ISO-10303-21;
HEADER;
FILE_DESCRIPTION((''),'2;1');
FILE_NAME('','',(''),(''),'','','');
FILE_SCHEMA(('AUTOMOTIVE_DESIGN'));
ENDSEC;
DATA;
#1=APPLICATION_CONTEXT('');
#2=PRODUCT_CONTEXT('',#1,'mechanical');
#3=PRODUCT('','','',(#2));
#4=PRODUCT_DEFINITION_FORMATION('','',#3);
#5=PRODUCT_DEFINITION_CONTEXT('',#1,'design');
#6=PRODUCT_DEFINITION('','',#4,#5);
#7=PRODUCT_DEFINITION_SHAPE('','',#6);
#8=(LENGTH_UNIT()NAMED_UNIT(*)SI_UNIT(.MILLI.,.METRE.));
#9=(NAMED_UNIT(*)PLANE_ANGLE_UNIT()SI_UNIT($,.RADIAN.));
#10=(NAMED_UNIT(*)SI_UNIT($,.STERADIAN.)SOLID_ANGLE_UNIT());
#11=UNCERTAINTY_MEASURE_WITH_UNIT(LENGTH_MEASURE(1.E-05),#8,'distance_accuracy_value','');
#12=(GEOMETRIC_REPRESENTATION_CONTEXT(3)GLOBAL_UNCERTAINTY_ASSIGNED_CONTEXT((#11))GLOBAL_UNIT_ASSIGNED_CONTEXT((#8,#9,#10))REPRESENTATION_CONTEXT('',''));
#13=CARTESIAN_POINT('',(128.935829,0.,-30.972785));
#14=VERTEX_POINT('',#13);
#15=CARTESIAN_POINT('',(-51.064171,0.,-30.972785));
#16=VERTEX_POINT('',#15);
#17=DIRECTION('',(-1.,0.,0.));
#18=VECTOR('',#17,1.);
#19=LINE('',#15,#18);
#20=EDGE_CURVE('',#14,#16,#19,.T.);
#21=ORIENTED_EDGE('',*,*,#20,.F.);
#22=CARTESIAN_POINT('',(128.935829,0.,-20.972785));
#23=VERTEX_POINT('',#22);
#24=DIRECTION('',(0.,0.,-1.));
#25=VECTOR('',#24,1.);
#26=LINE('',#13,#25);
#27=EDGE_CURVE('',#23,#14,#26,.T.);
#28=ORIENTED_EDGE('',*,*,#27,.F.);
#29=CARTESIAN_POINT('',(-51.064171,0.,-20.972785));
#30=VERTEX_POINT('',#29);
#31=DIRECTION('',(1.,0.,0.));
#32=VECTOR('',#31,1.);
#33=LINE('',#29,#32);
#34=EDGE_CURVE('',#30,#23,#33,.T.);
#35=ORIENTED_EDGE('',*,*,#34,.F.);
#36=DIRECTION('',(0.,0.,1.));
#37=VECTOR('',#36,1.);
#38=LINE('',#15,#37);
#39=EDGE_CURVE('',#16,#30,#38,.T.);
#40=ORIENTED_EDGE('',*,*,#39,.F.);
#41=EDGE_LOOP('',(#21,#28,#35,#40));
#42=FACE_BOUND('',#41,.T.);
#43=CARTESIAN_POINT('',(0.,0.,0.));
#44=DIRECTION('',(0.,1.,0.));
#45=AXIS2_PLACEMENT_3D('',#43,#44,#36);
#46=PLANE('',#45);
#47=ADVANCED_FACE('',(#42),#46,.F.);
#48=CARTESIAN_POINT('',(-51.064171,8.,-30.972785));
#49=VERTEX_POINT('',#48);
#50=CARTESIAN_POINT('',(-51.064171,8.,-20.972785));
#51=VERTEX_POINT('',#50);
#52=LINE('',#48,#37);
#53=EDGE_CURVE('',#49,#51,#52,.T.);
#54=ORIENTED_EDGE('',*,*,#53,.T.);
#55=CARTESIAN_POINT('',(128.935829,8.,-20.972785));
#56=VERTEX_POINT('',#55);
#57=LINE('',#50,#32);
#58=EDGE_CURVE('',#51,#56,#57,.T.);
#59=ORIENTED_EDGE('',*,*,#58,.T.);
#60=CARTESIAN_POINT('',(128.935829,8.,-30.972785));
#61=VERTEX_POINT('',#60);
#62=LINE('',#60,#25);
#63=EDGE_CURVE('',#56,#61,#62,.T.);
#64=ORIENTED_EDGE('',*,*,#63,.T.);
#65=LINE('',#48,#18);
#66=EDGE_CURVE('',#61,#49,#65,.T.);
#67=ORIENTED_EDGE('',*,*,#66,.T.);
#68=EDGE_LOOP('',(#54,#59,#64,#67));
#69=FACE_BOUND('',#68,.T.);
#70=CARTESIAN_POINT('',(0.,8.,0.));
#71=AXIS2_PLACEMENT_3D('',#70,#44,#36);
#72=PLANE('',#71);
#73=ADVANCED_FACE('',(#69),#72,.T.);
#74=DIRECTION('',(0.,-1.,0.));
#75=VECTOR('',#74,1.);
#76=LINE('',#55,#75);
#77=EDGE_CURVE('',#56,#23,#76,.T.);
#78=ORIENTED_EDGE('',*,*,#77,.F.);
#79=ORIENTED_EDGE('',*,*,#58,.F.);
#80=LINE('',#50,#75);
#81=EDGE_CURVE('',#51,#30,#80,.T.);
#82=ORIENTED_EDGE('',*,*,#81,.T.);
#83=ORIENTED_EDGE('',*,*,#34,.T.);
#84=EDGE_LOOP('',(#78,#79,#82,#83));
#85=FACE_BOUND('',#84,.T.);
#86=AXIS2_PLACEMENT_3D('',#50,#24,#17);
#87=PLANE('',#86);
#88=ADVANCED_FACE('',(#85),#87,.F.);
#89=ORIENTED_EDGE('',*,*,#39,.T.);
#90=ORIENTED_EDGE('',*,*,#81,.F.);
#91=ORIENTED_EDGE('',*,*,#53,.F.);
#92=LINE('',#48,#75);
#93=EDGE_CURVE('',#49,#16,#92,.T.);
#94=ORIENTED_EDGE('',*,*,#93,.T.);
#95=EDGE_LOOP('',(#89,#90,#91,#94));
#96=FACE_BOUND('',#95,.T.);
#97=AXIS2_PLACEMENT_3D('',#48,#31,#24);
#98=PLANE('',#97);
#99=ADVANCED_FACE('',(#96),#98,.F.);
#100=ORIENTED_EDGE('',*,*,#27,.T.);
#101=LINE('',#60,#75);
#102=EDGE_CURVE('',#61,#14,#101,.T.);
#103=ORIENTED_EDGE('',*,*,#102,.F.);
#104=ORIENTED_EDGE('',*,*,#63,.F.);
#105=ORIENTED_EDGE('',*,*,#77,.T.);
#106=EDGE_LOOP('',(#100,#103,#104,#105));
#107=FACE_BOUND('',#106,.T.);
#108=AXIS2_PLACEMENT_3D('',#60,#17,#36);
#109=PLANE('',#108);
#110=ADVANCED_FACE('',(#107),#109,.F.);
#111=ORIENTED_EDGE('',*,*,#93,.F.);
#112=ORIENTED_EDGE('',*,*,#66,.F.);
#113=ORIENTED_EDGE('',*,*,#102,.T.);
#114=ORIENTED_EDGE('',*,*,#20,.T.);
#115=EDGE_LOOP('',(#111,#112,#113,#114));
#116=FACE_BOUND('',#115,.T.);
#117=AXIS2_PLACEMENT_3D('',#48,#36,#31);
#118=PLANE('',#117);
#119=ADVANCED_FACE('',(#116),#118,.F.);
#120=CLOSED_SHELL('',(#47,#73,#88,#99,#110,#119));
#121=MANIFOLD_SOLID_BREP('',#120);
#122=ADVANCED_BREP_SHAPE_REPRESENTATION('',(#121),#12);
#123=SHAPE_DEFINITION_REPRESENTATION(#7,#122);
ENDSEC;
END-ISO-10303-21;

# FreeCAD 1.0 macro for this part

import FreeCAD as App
import Part
import Sketcher

V = App.Vector


def add_polygon(sketch, points):
    """Adds a closed chain of lines whose ends are joined by coincident constraints."""
    first, n = sketch.GeometryCount, len(points)
    for a, b in zip(points, points[1:] + points[:1]):
        sketch.addGeometry(Part.LineSegment(App.Vector(*a, 0), App.Vector(*b, 0)), False)
    for i in range(n):
        sketch.addConstraint(Sketcher.Constraint("Coincident", first + i, 2, first + (i + 1) % n, 1))

doc = App.newDocument("Part")
body = doc.addObject("PartDesign::Body", "Body")

sketch1 = body.newObject("Sketcher::SketchObject", "Sketch")
sketch1.AttachmentSupport = (doc.getObject("XZ_Plane"), [""])
sketch1.MapMode = "FlatFace"
add_polygon(sketch1, [(-51, -31), (-51, -21), (129, -21), (129, -31)])
sketch1.addConstraint([
    Sketcher.Constraint("Vertical", 0),
    Sketcher.Constraint("Horizontal", 1),
    Sketcher.Constraint("Vertical", 2),
    Sketcher.Constraint("Horizontal", 3),
    Sketcher.Constraint("DistanceX", 1, 1, 1, 2, 180.0),
    Sketcher.Constraint("DistanceY", 0, 1, 0, 2, 10.0),
    Sketcher.Constraint("DistanceX", 0, 2, -1, 1, 51.064171),
    Sketcher.Constraint("DistanceY", 0, 2, -1, 1, 20.972785),
])
pad1 = body.newObject("PartDesign::Pad", "Pad")
pad1.Profile = sketch1
pad1.Length = 8
pad1.Reversed = True

doc.recompute()
